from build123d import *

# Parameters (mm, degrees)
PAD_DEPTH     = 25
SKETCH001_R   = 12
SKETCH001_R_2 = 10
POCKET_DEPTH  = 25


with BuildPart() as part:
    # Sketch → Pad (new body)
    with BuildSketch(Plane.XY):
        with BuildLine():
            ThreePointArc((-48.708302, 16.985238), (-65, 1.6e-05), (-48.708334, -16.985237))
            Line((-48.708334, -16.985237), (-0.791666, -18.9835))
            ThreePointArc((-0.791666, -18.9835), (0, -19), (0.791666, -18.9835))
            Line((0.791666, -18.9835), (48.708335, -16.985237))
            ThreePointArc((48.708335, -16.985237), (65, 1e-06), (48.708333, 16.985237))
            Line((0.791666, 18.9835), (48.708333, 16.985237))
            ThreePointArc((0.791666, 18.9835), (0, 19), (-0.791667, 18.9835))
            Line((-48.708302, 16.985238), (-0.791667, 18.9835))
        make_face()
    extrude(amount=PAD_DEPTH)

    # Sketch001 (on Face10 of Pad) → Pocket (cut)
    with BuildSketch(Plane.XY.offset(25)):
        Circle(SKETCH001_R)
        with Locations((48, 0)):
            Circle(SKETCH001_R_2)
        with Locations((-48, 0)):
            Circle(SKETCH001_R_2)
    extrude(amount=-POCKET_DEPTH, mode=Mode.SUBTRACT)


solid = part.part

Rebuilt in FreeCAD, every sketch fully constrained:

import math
import FreeCAD as App
import Part
import Sketcher
from FreeCAD import Vector

doc = App.newDocument("Part")
body = doc.addObject("PartDesign::Body", "Body")

sketch1 = doc.addObject("Sketcher::SketchObject", "Sketch")
body.addObject(sketch1)
sketch1.AttachmentSupport = (doc.XY_Plane, [""])
sketch1.MapMode = "FlatFace"
sketch1.addGeometry([
    Part.ArcOfCircle(Part.Circle(Vector(-48, 0, 0), Vector(0, 0, 1), 17), math.radians(92.38791), math.radians(267.611982)),
    Part.LineSegment(Vector(-48.708334, -16.985237, 0), Vector(-0.791666, -18.9835, 0)),
    Part.ArcOfCircle(Part.Circle(Vector(0, 0.000221, 0), Vector(0, 0, 1), 19.000221), math.radians(-92.387986), math.radians(-87.612014)),
    Part.LineSegment(Vector(0.791666, -18.9835, 0), Vector(48.708335, -16.985237, 0)),
    Part.ArcOfCircle(Part.Circle(Vector(48, 0, 0), Vector(0, 0, 1), 17), math.radians(-87.611978), math.radians(87.611984)),
    Part.LineSegment(Vector(48.708333, 16.985237, 0), Vector(0.791666, 18.9835, 0)),
    Part.ArcOfCircle(Part.Circle(Vector(0, -0.000245, 0), Vector(0, 0, 1), 19.000245), math.radians(87.612016), math.radians(92.387984)),
    Part.LineSegment(Vector(-0.791667, 18.9835, 0), Vector(-48.708302, 16.985238, 0)),
], False)
sketch1.addConstraint([
    Sketcher.Constraint("Coincident", 0, 2, 1, 1),
    Sketcher.Constraint("Coincident", 1, 2, 2, 1),
    Sketcher.Constraint("Coincident", 2, 2, 3, 1),
    Sketcher.Constraint("Coincident", 3, 2, 4, 1),
    Sketcher.Constraint("Coincident", 4, 2, 5, 1),
    Sketcher.Constraint("Coincident", 5, 2, 6, 1),
    Sketcher.Constraint("Coincident", 6, 2, 7, 1),
    Sketcher.Constraint("Coincident", 7, 2, 0, 1),
    Sketcher.Constraint("PointOnObject", 0, 3, -1),
    Sketcher.Constraint("PointOnObject", 2, 3, -2),
    Sketcher.Constraint("PointOnObject", 4, 3, -1),
    Sketcher.Constraint("PointOnObject", 6, 3, -2),
    Sketcher.Constraint("Radius", 0, 17.0),
    Sketcher.Constraint("Radius", 4, 17.0),
    Sketcher.Constraint("DistanceX", 0, 3, -1, 1, 48.0),
    Sketcher.Constraint("DistanceX", -1, 1, 4, 3, 48.0),
    Sketcher.Constraint("DistanceX", 0, 2, 2, 2, 49.5),
    Sketcher.Constraint("DistanceX", 1, 2, 3, 2, 49.500001),
    Sketcher.Constraint("Radius", 2, 19.000221),
    Sketcher.Constraint("Radius", 6, 19.000245),
    Sketcher.Constraint("DistanceY", 2, 2, 5, 2, 37.967),
    Sketcher.Constraint("DistanceY", 1, 2, 5, 2, 37.967),
    Sketcher.Constraint("DistanceY", 1, 2, 6, 2, 37.967),
    Sketcher.Constraint("DistanceY", 1, 2, -1, 1, 18.9835),
    Sketcher.Constraint("DistanceY", -1, 1, 2, 3, 0.000221),
    Sketcher.Constraint("DistanceY", 0, 2, 6, 3, 16.984992),
    Sketcher.Constraint("DistanceY", 0, 3, 7, 2, 16.985238),
    Sketcher.Constraint("Distance", 5, 47.958316),
])
pad1 = doc.addObject("PartDesign::Pad", "Pad")
body.addObject(pad1)
pad1.Profile = sketch1
pad1.Length = 25

sketch2 = doc.addObject("Sketcher::SketchObject", "Sketch001")
body.addObject(sketch2)
sketch2.AttachmentSupport = (doc.XY_Plane, [""])
sketch2.MapMode = "FlatFace"
sketch2.AttachmentOffset = App.Placement(Vector(0, 0, 25), App.Rotation())
sketch2.addGeometry([
    Part.Circle(Vector(0, 0, 0), Vector(0, 0, 1), 12),
    Part.Circle(Vector(48, 0, 0), Vector(0, 0, 1), 10),
    Part.Circle(Vector(-48, 0, 0), Vector(0, 0, 1), 10),
], False)
sketch2.addConstraint([
    Sketcher.Constraint("Coincident", 0, 3, -1, 1),
    Sketcher.Constraint("Equal", 1, 2),
    Sketcher.Constraint("Symmetric", 1, 3, 2, 3, -1, 1),
    Sketcher.Constraint("PointOnObject", 1, 3, -1),
    Sketcher.Constraint("Diameter", 0, 24.0),
    Sketcher.Constraint("Diameter", 1, 20.0),
    Sketcher.Constraint("DistanceX", -1, 1, 1, 3, 48.0),
])
pocket1 = doc.addObject("PartDesign::Pocket", "Pocket")
body.addObject(pocket1)
pocket1.Profile = sketch2
pocket1.Length = 25

doc.recompute()
